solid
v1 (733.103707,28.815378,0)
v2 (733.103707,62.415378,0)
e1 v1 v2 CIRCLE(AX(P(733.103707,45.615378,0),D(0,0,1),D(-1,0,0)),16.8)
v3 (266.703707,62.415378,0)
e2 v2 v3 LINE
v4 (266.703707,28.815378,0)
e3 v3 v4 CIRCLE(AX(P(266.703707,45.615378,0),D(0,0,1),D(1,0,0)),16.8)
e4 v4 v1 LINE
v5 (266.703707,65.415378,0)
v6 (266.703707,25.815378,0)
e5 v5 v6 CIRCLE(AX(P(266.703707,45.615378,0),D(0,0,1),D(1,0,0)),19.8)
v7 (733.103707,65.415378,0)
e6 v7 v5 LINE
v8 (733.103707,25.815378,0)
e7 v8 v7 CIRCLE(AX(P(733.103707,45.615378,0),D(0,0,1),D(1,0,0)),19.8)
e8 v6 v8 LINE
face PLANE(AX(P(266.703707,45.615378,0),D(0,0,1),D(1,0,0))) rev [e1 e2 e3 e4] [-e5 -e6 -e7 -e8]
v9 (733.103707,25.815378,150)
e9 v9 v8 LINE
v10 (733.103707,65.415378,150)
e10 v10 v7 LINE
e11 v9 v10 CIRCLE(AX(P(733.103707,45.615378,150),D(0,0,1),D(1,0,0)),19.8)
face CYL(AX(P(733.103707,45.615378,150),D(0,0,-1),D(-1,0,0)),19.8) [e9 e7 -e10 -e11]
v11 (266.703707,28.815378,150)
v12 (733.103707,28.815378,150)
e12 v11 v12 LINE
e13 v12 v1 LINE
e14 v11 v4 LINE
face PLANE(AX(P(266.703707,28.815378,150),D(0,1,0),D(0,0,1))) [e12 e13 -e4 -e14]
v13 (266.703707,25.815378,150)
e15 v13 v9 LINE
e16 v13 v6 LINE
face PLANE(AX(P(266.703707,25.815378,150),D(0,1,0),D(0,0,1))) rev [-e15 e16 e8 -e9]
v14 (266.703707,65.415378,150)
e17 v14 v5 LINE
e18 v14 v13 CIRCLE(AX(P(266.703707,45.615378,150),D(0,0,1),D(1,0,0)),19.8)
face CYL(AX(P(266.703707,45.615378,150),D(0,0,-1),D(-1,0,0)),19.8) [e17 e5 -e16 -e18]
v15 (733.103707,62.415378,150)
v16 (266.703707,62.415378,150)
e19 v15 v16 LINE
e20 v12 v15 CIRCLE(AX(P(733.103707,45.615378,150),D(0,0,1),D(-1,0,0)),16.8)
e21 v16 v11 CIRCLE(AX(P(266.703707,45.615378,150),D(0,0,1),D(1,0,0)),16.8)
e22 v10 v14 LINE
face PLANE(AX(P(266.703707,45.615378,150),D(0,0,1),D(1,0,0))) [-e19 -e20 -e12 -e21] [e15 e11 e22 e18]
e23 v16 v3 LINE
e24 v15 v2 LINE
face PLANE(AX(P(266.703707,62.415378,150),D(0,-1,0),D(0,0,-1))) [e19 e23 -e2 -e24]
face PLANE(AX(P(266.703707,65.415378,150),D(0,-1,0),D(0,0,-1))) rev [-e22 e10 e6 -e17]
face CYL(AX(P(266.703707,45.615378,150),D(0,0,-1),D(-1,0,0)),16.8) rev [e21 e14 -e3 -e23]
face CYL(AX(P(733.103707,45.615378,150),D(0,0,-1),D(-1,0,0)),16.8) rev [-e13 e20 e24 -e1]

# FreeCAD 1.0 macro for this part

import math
import FreeCAD as App
import Part
import Sketcher

V = App.Vector
Q = App.Units.Quantity

doc = App.newDocument("Part")
body = doc.addObject("PartDesign::Body", "Body")

# Sketch on XY plane
sketch1 = doc.addObject("Sketcher::SketchObject", "Sketch")
body.addObject(sketch1)
sketch1.AttachmentSupport = (doc.XY_Plane, [""])
sketch1.MapMode = "FlatFace"
sketch1.addGeometry([
    Part.LineSegment(V(267, 26, 0), V(733, 26, 0)),  # 0
    Part.ArcOfCircle(Part.Circle(V(733, 46, 0), V(0, 0, 1), 20), math.radians(-90), math.radians(90)),  # 1
    Part.LineSegment(V(733, 65, 0), V(267, 65, 0)),  # 2
    Part.ArcOfCircle(Part.Circle(V(267, 46, 0), V(0, 0, 1), 20), math.radians(90), math.radians(270)),  # 3
    Part.LineSegment(V(733, 29, 0), V(267, 29, 0)),  # 4
    Part.ArcOfCircle(Part.Circle(V(267, 46, 0), V(0, 0, 1), 17), math.radians(90), math.radians(270)),  # 5
    Part.LineSegment(V(267, 62, 0), V(733, 62, 0)),  # 6
    Part.ArcOfCircle(Part.Circle(V(733, 46, 0), V(0, 0, 1), 17), math.radians(-90), math.radians(90)),  # 7
], False)
sketch1.addConstraint([
    Sketcher.Constraint("Tangent", 0, 2, 1, 1),
    Sketcher.Constraint("Tangent", 1, 2, 2, 1),
    Sketcher.Constraint("Tangent", 2, 2, 3, 1),
    Sketcher.Constraint("Tangent", 3, 2, 0, 1),
    Sketcher.Constraint("Tangent", 4, 2, 5, 2),
    Sketcher.Constraint("Tangent", 5, 1, 6, 1),
    Sketcher.Constraint("Tangent", 6, 2, 7, 2),
    Sketcher.Constraint("Tangent", 7, 1, 4, 1),
    Sketcher.Constraint("Horizontal", 0),
    Sketcher.Constraint("Horizontal", 2),
    Sketcher.Constraint("Horizontal", 4),
    Sketcher.Constraint("Horizontal", 6),
    Sketcher.Constraint("Coincident", 5, 3, 3, 3),
    Sketcher.Constraint("Vertical", 7, 3, 0, 2),
    Sketcher.Constraint("Radius", 1, Q("19.8 mm")),
    Sketcher.Constraint("Radius", 5, Q("16.8 mm")),
    Sketcher.Constraint("DistanceX", 0, 1, 0, 2, Q("466.4 mm")),
    Sketcher.Constraint("DistanceX", -1, 1, 1, 3, Q("733.103707 mm")),
    Sketcher.Constraint("DistanceY", -1, 1, 1, 3, Q("45.615378 mm")),
])
pad1 = doc.addObject("PartDesign::Pad", "Pad")
body.addObject(pad1)
pad1.Profile = sketch1
pad1.Length = 150

doc.recompute()
